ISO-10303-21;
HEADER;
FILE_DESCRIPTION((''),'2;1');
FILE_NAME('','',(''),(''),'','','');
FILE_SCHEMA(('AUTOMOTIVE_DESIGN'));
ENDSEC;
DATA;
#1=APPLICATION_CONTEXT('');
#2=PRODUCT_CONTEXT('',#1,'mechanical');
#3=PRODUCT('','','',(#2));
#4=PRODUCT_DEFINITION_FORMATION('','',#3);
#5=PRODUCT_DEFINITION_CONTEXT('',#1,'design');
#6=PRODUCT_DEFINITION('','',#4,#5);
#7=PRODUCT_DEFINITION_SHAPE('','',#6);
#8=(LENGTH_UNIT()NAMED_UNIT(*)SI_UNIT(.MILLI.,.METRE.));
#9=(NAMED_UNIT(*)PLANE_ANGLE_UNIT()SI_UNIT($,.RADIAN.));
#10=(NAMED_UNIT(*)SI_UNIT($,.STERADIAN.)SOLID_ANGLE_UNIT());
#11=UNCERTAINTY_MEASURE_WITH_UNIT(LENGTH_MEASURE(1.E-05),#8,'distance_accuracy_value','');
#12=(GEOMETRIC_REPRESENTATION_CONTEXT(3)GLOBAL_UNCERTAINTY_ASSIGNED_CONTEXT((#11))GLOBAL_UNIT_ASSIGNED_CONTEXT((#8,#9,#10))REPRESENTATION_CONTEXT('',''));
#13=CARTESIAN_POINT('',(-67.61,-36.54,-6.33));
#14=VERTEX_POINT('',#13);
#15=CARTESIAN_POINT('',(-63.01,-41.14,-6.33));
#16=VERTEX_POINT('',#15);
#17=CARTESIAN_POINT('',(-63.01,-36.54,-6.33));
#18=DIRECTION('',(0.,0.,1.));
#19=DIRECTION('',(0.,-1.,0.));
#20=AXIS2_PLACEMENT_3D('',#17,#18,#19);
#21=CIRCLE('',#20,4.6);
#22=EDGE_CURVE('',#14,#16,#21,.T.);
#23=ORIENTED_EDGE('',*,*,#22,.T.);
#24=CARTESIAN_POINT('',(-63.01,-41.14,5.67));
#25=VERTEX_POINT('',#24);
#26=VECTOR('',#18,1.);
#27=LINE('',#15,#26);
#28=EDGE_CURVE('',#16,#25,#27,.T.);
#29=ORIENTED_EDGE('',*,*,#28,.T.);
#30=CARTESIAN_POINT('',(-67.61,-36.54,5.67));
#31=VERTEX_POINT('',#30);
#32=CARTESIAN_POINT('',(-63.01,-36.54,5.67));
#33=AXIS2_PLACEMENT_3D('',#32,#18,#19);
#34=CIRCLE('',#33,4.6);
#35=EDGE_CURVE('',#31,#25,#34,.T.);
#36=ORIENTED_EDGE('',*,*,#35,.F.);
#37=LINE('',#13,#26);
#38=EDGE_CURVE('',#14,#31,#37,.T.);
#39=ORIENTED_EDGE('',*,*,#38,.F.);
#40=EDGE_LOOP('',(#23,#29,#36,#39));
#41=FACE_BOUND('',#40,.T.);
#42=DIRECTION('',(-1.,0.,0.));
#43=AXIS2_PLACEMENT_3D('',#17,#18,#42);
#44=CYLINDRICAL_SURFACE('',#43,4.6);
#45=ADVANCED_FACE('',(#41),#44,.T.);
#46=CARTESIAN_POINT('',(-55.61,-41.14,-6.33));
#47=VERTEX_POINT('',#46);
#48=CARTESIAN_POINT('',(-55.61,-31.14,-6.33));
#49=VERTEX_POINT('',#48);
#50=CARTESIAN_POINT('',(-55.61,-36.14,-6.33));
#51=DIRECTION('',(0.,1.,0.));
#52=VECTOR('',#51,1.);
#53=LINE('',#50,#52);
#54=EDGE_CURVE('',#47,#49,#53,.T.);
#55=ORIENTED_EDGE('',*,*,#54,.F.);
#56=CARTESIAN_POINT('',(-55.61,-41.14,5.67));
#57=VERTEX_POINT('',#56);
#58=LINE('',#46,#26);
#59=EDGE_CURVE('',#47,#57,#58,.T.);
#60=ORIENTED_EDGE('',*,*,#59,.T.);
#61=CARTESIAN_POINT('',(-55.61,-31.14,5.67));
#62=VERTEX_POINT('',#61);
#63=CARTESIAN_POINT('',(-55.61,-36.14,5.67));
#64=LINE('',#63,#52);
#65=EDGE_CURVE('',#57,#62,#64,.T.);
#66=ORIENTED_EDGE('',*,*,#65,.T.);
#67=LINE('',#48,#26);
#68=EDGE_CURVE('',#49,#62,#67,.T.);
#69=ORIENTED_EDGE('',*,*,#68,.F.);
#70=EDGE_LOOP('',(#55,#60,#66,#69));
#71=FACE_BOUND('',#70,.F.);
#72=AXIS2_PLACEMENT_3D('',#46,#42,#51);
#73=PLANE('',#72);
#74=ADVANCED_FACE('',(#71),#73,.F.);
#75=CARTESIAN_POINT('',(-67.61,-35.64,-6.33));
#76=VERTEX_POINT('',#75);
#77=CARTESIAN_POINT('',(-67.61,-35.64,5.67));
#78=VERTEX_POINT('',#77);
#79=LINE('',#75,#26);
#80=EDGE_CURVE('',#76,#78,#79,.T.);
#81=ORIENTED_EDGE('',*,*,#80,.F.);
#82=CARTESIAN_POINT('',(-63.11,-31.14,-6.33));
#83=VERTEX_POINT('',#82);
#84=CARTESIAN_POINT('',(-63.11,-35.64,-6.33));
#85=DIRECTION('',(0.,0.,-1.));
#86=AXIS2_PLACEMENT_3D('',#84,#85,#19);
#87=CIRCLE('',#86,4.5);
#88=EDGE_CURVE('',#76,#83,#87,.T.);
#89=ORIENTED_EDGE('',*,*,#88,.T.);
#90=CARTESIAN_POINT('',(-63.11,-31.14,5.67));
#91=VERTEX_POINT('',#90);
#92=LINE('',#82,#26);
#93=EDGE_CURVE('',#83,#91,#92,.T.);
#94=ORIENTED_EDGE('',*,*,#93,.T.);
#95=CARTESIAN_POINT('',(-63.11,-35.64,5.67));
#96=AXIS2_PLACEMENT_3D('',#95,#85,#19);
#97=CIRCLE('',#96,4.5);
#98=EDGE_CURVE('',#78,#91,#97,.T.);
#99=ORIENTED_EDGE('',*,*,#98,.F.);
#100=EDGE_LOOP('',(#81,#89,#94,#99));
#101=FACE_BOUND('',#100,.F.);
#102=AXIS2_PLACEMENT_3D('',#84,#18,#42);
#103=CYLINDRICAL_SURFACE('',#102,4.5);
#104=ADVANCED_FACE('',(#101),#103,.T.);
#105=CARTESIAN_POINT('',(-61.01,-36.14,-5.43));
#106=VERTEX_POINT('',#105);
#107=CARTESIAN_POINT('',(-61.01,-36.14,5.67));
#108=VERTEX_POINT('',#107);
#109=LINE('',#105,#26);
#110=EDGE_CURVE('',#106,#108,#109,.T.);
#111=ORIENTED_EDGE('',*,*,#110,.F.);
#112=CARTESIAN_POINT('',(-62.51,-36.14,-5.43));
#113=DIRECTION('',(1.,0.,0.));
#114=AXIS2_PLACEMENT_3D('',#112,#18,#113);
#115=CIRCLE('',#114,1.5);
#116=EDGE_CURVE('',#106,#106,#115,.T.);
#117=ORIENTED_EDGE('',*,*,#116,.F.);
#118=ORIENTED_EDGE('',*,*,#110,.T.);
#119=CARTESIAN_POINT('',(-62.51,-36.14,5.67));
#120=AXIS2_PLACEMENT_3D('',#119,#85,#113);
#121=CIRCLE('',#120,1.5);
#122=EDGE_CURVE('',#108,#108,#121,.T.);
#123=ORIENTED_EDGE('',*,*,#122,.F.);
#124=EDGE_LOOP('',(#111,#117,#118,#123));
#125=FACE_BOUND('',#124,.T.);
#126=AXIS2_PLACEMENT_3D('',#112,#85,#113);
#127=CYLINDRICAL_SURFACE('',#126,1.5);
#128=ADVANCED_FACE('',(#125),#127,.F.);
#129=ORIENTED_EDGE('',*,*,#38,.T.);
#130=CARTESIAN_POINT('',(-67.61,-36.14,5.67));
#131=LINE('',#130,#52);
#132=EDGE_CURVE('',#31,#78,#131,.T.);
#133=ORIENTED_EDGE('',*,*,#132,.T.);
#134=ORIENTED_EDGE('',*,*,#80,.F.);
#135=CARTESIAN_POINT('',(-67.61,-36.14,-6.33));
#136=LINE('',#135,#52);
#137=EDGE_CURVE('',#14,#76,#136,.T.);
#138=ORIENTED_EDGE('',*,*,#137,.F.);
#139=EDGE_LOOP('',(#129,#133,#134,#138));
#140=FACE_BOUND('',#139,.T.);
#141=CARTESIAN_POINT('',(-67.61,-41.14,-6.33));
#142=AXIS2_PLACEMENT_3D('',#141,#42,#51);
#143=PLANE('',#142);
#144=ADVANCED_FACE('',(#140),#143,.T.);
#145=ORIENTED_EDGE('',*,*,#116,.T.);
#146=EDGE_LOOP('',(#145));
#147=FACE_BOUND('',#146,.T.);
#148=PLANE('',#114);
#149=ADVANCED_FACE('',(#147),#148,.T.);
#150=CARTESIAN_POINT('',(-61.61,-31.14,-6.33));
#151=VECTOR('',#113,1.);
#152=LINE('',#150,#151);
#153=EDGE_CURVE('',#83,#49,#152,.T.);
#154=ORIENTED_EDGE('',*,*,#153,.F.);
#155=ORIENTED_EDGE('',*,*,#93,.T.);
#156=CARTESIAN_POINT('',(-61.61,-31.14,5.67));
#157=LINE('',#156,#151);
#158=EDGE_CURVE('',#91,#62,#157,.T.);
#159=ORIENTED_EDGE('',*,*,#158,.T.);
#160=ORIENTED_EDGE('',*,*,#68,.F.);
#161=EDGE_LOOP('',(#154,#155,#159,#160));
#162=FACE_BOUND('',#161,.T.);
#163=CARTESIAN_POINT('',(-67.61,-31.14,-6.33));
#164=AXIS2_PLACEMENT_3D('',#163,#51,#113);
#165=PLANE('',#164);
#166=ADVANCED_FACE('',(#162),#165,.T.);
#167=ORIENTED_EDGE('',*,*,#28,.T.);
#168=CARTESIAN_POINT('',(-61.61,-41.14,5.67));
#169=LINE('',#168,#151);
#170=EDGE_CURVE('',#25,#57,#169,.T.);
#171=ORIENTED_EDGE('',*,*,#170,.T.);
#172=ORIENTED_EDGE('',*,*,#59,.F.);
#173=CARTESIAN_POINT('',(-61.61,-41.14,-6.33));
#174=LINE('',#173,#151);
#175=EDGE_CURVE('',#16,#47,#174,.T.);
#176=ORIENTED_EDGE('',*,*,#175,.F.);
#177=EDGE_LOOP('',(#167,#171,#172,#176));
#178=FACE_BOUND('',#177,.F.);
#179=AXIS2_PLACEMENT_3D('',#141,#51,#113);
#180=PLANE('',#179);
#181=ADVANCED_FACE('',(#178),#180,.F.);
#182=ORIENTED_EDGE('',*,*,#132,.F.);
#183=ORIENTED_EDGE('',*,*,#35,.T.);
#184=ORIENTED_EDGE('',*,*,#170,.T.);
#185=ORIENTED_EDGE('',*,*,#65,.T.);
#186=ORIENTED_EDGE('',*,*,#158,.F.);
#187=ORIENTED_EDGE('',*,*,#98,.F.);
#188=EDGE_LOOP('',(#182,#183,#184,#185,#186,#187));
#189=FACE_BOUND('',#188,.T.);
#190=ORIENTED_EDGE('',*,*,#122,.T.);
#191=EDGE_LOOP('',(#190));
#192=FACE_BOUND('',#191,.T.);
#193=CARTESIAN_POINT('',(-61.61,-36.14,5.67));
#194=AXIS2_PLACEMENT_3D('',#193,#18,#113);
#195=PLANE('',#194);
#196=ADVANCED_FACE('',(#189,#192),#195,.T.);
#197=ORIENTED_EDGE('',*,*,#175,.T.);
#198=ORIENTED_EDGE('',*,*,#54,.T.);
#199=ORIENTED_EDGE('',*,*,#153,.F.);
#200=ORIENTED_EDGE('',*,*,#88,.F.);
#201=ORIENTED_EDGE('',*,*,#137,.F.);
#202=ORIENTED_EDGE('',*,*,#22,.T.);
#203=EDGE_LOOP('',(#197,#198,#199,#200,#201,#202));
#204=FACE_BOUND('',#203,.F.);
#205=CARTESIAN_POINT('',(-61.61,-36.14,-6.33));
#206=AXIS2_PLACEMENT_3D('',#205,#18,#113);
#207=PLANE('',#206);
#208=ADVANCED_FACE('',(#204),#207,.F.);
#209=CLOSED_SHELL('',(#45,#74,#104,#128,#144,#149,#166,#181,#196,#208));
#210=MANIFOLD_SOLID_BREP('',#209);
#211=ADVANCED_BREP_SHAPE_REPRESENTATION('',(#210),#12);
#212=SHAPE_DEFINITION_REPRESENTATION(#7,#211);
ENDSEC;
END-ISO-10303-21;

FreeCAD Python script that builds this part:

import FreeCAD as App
import Part
import Sketcher

V = App.Vector
Q = App.Units.Quantity


def edges_at(feature, points):
    """Names of the edges that pass closest to the given points."""
    edges = feature.Shape.Edges
    near = lambda p: min(range(len(edges)), key=lambda i: edges[i].distToShape(Part.Vertex(*p))[0])
    return sorted({f"Edge{near(p) + 1}" for p in points})


def add_polygon(sketch, points):
    """Adds a closed chain of lines whose ends are joined by coincident constraints."""
    first, n = sketch.GeometryCount, len(points)
    for a, b in zip(points, points[1:] + points[:1]):
        sketch.addGeometry(Part.LineSegment(App.Vector(*a, 0), App.Vector(*b, 0)), False)
    for i in range(n):
        sketch.addConstraint(Sketcher.Constraint("Coincident", first + i, 2, first + (i + 1) % n, 1))

doc = App.newDocument("Part")
body = doc.addObject("PartDesign::Body", "Body")

sketch1 = doc.addObject("Sketcher::SketchObject", "Sketch")
body.addObject(sketch1)
sketch1.AttachmentSupport = (doc.XY_Plane, [""])
sketch1.MapMode = "FlatFace"
sketch1.AttachmentOffset = App.Placement(V(0, 0, -48.3), App.Rotation())
sketch1.addGeometry(Part.Circle(V(-103.2, 5, 0), V(0, 0, 1), 1.5), False)
sketch1.addConstraint([
    Sketcher.Constraint("Diameter", 0, Q("3 mm")),
    Sketcher.Constraint("DistanceY", -1, 1, 0, 3, Q("5 mm")),
    Sketcher.Constraint("DistanceX", 0, 3, -1, 1, Q("103.2 mm")),
])
pad1 = doc.addObject("PartDesign::Pad", "Pad")
body.addObject(pad1)
pad1.Profile = sketch1
pad1.Length = 20
body2 = doc.addObject("PartDesign::Body", "Body001")

sketch2 = doc.addObject("Sketcher::SketchObject", "Sketch001")
body2.addObject(sketch2)
sketch2.AttachmentSupport = (doc.getObject("XY_Plane001"), [""])
sketch2.MapMode = "FlatFace"
sketch2.AttachmentOffset = App.Placement(V(0, 0, -49.2), App.Rotation())
add_polygon(sketch2, [(-108.3, 10), (-108.3, 0), (-96.3, 0), (-96.3, 10)])
sketch2.addConstraint([
    Sketcher.Constraint("Vertical", 0),
    Sketcher.Constraint("Horizontal", 1),
    Sketcher.Constraint("Vertical", 2),
    Sketcher.Constraint("Horizontal", 3),
    Sketcher.Constraint("PointOnObject", 0, 2, -1),
    Sketcher.Constraint("DistanceX", 1, 1, 1, 2, Q("12 mm")),
    Sketcher.Constraint("DistanceY", 0, 2, 0, 1, Q("10 mm")),
    Sketcher.Constraint("DistanceX", 0, 2, -1, 1, Q("108.3 mm")),
])
pad2 = doc.addObject("PartDesign::Pad", "Pad001")
body2.addObject(pad2)
pad2.Profile = sketch2
pad2.Length = 12
doc.recompute()

boolean = doc.addObject("PartDesign::Boolean", "Boolean")
body2.addObject(boolean)
boolean.Type = "Cut"
boolean.addObjects([body])
doc.recompute()

fillet = doc.addObject("PartDesign::Fillet", "Fillet")
body2.addObject(fillet)
fillet.Base = (boolean, edges_at(boolean, [(-108.3, 10, -43.2)]))
fillet.Radius = 4.5
doc.recompute()

fillet2 = doc.addObject("PartDesign::Fillet", "Fillet001")
body2.addObject(fillet2)
fillet2.Base = (fillet, edges_at(fillet, [(-108.3, 0, -43.2)]))
fillet2.Radius = 4.6
body3 = doc.addObject("PartDesign::Body", "Body002")
doc.recompute()

body2.Placement = App.Placement(V(40.69, -41.14, 42.87), App.Rotation(V(0, 0, 1), 0))
boolean2 = doc.addObject("PartDesign::Boolean", "Boolean001")
body3.addObject(boolean2)
boolean2.Type = "Fuse"
boolean2.addObjects([body2])

doc.recompute()
